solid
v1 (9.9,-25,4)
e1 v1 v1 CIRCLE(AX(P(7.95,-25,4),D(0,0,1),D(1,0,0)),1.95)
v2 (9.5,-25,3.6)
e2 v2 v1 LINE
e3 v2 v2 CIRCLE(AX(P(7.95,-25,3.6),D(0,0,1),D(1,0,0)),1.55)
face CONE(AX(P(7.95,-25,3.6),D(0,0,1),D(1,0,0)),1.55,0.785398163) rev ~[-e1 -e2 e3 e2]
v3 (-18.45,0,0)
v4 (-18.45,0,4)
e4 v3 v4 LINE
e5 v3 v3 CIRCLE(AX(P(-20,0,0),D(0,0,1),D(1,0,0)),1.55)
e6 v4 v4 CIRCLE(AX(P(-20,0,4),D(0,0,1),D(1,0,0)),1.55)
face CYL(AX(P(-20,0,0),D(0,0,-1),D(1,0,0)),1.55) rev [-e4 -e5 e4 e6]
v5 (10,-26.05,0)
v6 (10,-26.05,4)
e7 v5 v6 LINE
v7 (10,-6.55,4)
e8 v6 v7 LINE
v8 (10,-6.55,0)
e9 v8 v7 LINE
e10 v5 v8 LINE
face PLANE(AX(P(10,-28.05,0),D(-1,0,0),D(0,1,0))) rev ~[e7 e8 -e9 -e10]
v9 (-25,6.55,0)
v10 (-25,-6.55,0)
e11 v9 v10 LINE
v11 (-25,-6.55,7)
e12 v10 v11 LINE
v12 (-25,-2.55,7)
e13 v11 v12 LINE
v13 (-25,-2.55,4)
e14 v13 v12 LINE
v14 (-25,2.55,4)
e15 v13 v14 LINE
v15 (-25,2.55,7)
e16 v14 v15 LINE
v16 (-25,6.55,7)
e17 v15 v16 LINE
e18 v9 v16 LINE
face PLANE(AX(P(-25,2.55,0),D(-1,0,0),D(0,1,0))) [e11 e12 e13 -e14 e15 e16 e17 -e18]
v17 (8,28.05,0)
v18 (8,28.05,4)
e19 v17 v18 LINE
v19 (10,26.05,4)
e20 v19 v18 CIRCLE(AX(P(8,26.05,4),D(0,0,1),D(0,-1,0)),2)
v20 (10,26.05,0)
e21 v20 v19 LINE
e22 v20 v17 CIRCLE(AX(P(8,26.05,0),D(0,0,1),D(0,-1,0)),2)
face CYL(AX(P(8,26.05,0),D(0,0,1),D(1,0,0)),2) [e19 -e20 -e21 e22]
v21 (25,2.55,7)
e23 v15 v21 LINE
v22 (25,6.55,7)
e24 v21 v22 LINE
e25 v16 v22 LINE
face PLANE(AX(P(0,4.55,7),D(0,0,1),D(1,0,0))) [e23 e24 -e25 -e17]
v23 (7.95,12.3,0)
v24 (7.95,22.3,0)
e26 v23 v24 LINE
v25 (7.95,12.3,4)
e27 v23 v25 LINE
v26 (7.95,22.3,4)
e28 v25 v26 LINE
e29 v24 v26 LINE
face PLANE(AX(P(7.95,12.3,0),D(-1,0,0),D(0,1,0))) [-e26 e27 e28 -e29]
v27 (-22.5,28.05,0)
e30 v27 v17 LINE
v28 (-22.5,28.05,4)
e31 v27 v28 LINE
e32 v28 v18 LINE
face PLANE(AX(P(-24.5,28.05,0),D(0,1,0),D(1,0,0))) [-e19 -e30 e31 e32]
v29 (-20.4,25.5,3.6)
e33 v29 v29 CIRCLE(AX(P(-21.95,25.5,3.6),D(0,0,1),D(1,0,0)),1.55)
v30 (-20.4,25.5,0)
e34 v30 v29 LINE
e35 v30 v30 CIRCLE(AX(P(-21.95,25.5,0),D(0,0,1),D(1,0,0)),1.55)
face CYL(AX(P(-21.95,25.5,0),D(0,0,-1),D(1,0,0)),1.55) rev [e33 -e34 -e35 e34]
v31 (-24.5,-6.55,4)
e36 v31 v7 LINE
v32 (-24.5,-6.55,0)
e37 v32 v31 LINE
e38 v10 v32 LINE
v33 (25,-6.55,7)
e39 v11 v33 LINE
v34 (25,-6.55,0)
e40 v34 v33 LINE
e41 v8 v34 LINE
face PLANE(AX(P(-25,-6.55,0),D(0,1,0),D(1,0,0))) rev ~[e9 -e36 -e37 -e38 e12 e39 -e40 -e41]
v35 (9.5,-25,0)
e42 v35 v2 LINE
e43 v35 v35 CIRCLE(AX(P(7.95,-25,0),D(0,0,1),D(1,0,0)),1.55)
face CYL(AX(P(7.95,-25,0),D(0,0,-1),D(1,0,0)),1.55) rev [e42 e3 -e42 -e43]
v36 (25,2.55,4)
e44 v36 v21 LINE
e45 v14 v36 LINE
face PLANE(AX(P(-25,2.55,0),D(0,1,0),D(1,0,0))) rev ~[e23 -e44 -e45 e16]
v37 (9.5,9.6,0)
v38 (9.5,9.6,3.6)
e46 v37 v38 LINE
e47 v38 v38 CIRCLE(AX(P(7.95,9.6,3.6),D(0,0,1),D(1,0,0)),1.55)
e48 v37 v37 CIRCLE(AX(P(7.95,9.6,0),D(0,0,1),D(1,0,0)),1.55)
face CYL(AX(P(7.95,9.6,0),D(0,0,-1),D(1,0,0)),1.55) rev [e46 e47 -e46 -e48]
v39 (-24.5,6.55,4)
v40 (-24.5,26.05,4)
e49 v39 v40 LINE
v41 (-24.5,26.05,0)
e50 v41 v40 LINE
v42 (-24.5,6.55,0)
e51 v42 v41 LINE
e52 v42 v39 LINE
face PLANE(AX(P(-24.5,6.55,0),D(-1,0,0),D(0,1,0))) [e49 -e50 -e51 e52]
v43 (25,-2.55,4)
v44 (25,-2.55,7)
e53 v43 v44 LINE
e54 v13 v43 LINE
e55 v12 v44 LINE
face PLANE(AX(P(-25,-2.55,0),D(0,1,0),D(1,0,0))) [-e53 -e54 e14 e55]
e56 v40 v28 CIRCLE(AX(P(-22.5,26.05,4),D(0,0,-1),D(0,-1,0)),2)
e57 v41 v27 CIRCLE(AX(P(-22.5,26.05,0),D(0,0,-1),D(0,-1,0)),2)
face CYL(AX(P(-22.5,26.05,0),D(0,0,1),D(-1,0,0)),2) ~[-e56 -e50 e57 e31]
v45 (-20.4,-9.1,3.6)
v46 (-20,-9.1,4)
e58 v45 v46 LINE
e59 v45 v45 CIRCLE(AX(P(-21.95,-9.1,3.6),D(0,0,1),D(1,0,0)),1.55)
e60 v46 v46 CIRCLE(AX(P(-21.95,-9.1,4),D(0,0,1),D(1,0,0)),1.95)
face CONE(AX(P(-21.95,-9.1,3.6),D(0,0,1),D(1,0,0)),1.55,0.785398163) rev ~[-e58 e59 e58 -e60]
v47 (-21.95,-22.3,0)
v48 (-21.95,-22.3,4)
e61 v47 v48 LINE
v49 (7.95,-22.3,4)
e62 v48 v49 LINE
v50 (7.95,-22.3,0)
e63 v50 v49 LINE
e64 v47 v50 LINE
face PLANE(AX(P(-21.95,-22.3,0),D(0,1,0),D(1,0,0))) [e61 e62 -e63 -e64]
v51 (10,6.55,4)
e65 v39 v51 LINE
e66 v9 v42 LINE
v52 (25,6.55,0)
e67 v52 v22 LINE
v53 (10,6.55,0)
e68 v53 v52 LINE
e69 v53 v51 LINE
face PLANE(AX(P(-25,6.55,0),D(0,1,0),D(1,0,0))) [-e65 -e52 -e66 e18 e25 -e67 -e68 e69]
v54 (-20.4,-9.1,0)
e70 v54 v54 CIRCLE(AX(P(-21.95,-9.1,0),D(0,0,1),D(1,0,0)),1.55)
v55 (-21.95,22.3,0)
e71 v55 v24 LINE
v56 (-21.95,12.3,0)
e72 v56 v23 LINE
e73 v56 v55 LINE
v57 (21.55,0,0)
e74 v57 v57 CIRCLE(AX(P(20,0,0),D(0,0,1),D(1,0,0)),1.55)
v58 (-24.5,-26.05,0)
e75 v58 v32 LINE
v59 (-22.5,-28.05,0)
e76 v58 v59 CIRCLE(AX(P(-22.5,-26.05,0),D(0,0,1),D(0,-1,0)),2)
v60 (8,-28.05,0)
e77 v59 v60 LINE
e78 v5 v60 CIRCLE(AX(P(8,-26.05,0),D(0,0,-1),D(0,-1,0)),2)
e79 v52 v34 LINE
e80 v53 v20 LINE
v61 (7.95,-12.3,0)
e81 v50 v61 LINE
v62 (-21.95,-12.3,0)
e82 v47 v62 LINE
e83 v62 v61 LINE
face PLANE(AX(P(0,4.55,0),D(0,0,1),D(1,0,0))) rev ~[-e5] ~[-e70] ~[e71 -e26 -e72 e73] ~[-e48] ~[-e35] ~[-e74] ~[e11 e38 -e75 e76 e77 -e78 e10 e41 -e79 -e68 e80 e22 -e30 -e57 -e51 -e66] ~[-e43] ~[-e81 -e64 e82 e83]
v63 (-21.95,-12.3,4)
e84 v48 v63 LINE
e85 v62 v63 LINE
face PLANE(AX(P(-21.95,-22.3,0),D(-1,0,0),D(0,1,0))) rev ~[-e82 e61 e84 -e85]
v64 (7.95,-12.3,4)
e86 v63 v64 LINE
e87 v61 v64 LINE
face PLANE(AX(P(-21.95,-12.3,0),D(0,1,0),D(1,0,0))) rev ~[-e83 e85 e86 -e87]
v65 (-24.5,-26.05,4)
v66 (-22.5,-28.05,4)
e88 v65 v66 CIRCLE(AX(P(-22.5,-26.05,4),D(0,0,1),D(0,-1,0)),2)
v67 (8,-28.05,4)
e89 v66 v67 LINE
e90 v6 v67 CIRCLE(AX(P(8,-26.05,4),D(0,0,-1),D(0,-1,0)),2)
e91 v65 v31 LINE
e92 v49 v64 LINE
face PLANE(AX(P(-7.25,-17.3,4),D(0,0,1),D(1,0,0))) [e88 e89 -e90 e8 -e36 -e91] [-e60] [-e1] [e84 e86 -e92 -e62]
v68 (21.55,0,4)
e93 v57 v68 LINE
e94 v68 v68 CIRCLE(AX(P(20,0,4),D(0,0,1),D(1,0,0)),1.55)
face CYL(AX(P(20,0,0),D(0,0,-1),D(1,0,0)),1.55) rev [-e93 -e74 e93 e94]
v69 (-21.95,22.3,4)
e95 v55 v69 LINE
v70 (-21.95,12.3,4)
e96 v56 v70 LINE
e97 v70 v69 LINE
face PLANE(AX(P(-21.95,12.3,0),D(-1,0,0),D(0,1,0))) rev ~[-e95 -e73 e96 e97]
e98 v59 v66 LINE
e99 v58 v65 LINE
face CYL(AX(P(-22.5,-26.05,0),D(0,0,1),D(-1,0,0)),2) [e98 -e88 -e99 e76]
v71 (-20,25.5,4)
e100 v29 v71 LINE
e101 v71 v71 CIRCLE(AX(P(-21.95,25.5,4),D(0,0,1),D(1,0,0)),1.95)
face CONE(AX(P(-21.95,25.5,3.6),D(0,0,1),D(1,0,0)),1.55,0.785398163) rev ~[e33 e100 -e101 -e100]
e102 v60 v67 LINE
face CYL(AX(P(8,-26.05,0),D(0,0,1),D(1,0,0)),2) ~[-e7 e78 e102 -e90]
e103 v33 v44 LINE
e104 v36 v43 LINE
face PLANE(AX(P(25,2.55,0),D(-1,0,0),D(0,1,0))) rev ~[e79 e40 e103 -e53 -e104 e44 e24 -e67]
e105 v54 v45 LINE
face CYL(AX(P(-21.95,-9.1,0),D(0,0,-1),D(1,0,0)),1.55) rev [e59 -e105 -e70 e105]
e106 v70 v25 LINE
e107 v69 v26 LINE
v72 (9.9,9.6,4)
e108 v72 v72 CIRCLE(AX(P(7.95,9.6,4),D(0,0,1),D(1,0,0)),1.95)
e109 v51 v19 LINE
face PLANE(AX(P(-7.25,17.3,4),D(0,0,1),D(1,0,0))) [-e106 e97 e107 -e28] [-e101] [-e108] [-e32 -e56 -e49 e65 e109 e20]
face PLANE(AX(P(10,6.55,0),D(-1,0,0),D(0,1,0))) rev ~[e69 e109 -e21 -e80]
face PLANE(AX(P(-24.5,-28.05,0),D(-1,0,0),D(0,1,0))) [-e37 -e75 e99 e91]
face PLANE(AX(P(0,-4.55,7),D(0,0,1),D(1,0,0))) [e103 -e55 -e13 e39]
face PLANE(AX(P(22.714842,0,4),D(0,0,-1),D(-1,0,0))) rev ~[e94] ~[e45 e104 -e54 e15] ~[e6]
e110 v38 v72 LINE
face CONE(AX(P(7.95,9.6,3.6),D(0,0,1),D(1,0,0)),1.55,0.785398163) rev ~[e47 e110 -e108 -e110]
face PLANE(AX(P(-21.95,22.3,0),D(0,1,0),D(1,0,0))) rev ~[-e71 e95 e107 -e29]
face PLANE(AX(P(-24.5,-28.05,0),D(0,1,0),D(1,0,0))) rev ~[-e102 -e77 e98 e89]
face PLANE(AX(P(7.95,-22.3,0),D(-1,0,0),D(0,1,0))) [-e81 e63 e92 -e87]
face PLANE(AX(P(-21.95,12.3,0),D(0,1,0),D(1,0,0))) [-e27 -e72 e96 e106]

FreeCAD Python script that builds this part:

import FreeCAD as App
import Part
import Sketcher
from FreeCAD import Vector
Q = App.Units.Quantity


def edges_at(feature, points):
    """Names of the edges that pass closest to the given points."""
    edges = feature.Shape.Edges
    near = lambda p: min(range(len(edges)), key=lambda i: edges[i].distToShape(Part.Vertex(*p))[0])
    return sorted({f"Edge{near(p) + 1}" for p in points})

doc = App.newDocument("Part")
body = doc.addObject("PartDesign::Body", "Body")

# Sketch on XY plane
sketch1 = doc.addObject("Sketcher::SketchObject", "Sketch")
body.addObject(sketch1)
sketch1.AttachmentSupport = (doc.XY_Plane, [""])
sketch1.MapMode = "FlatFace"
sketch1.addGeometry([
    Part.LineSegment(Vector(-25, -2.5, 0), Vector(25, -2.5, 0)),  # 0
    Part.LineSegment(Vector(25, -2.5, 0), Vector(25, 2.5, 0)),  # 1
    Part.LineSegment(Vector(25, 2.5, 0), Vector(-25, 2.5, 0)),  # 2
    Part.LineSegment(Vector(-25, 2.5, 0), Vector(-25, -2.5, 0)),  # 3
    Part.Circle(Vector(20, 0, 0), Vector(0, 0, 1), 1.6),  # 4
    Part.Circle(Vector(-20, 0, 0), Vector(0, 0, 1), 1.6),  # 5
], False)
sketch1.addConstraint([
    Sketcher.Constraint("Coincident", 0, 2, 1, 1),
    Sketcher.Constraint("Coincident", 1, 2, 2, 1),
    Sketcher.Constraint("Coincident", 2, 2, 3, 1),
    Sketcher.Constraint("Coincident", 3, 2, 0, 1),
    Sketcher.Constraint("Horizontal", 0),
    Sketcher.Constraint("Vertical", 1),
    Sketcher.Constraint("Horizontal", 2),
    Sketcher.Constraint("Vertical", 3),
    Sketcher.Constraint("Equal", 4, 5),
    Sketcher.Constraint("Symmetric", 4, 3, 5, 3, -1, 1),
    Sketcher.Constraint("Symmetric", 0, 2, 2, 2, -1, 1),
    Sketcher.Constraint("PointOnObject", 4, 3, -1),
    Sketcher.Constraint("Diameter", 4, Q("3.1 mm")),
    Sketcher.Constraint("DistanceX", 0, 1, 0, 2, Q("50 mm")),
    Sketcher.Constraint("DistanceY", 1, 1, 1, 2, Q("5.1 mm")),
    Sketcher.Constraint("DistanceX", -1, 1, 4, 3, Q("20 mm")),
])
pad1 = doc.addObject("PartDesign::Pad", "Pad")
body.addObject(pad1)
pad1.Profile = sketch1
pad1.Length = 4

# Sketch on XY plane
sketch2 = doc.addObject("Sketcher::SketchObject", "Sketch001")
body.addObject(sketch2)
sketch2.AttachmentSupport = (doc.XY_Plane, [""])
sketch2.MapMode = "FlatFace"
sketch2.addGeometry([
    Part.LineSegment(Vector(-25, 6.5, 0), Vector(-25, 2.5, 0)),  # 0
    Part.LineSegment(Vector(-25, 2.5, 0), Vector(25, 2.5, 0)),  # 1
    Part.LineSegment(Vector(25, 2.5, 0), Vector(25, 6.5, 0)),  # 2
    Part.LineSegment(Vector(25, 6.5, 0), Vector(-25, 6.5, 0)),  # 3
    Part.LineSegment(Vector(-25, -2.5, 0), Vector(-25, -6.5, 0)),  # 4
    Part.LineSegment(Vector(-25, -6.5, 0), Vector(25, -6.5, 0)),  # 5
    Part.LineSegment(Vector(25, -6.5, 0), Vector(25, -2.5, 0)),  # 6
    Part.LineSegment(Vector(25, -2.5, 0), Vector(-25, -2.5, 0)),  # 7
], False)
sketch2.addConstraint([
    Sketcher.Constraint("Coincident", 0, 2, 1, 1),
    Sketcher.Constraint("Coincident", 1, 2, 2, 1),
    Sketcher.Constraint("Coincident", 2, 2, 3, 1),
    Sketcher.Constraint("Coincident", 3, 2, 0, 1),
    Sketcher.Constraint("Coincident", 4, 2, 5, 1),
    Sketcher.Constraint("Coincident", 5, 2, 6, 1),
    Sketcher.Constraint("Coincident", 6, 2, 7, 1),
    Sketcher.Constraint("Coincident", 7, 2, 4, 1),
    Sketcher.Constraint("Vertical", 0),
    Sketcher.Constraint("Horizontal", 1),
    Sketcher.Constraint("Vertical", 2),
    Sketcher.Constraint("Horizontal", 3),
    Sketcher.Constraint("Vertical", 4),
    Sketcher.Constraint("Horizontal", 5),
    Sketcher.Constraint("Vertical", 6),
    Sketcher.Constraint("Horizontal", 7),
    Sketcher.Constraint("Symmetric", 2, 2, 4, 2, -1, 1),
    Sketcher.Constraint("Symmetric", 0, 2, 6, 2, -1, 1),
    Sketcher.Constraint("Vertical", 3, 2, 4, 2),
    Sketcher.Constraint("DistanceX", 1, 1, 1, 2, Q("50 mm")),
    Sketcher.Constraint("DistanceY", 0, 2, 0, 1, Q("4 mm")),
    Sketcher.Constraint("DistanceY", 4, 2, 0, 2, Q("9.1 mm")),
])
pad2 = doc.addObject("PartDesign::Pad", "Pad001")
body.addObject(pad2)
pad2.Profile = sketch2
pad2.Length = 7

# Sketch on XY plane
sketch3 = doc.addObject("Sketcher::SketchObject", "Sketch002")
body.addObject(sketch3)
sketch3.AttachmentSupport = (doc.XY_Plane, [""])
sketch3.MapMode = "FlatFace"
sketch3.addGeometry([
    Part.LineSegment(Vector(-24.5, 28.1, 0), Vector(-24.5, 6.5, 0)),  # 0
    Part.LineSegment(Vector(-24.5, 6.5, 0), Vector(10, 6.5, 0)),  # 1
    Part.LineSegment(Vector(10, 6.5, 0), Vector(10, 28.1, 0)),  # 2
    Part.LineSegment(Vector(10, 28.1, 0), Vector(-24.5, 28.1, 0)),  # 3
    Part.Circle(Vector(8, 9.6, 0), Vector(0, 0, 1), 1.6),  # 4
    Part.LineSegment(Vector(8, 12.3, 0), Vector(-21.9, 12.3, 0)),  # 5
    Part.LineSegment(Vector(-21.9, 12.3, 0), Vector(-21.9, 22.3, 0)),  # 6
    Part.LineSegment(Vector(-21.9, 22.3, 0), Vector(8, 22.3, 0)),  # 7
    Part.LineSegment(Vector(8, 22.3, 0), Vector(8, 12.3, 0)),  # 8
    Part.Circle(Vector(-21.9, 25.5, 0), Vector(0, 0, 1), 1.6),  # 9
    Part.LineSegment(Vector(-24.5, -6.5, 0), Vector(-24.5, -28.1, 0)),  # 10
    Part.LineSegment(Vector(-24.5, -28.1, 0), Vector(10, -28.1, 0)),  # 11
    Part.LineSegment(Vector(10, -28.1, 0), Vector(10, -6.5, 0)),  # 12
    Part.LineSegment(Vector(10, -6.5, 0), Vector(-24.5, -6.5, 0)),  # 13
    Part.Circle(Vector(8, -25, 0), Vector(0, 0, 1), 1.6),  # 14
    Part.LineSegment(Vector(8, -22.3, 0), Vector(-21.9, -22.3, 0)),  # 15
    Part.LineSegment(Vector(-21.9, -22.3, 0), Vector(-21.9, -12.3, 0)),  # 16
    Part.LineSegment(Vector(-21.9, -12.3, 0), Vector(8, -12.3, 0)),  # 17
    Part.LineSegment(Vector(8, -12.3, 0), Vector(8, -22.3, 0)),  # 18
    Part.Circle(Vector(-21.9, -9.1, 0), Vector(0, 0, 1), 1.6),  # 19
], False)
sketch3.addConstraint([
    Sketcher.Constraint("Coincident", 0, 2, 1, 1),
    Sketcher.Constraint("Coincident", 1, 2, 2, 1),
    Sketcher.Constraint("Coincident", 2, 2, 3, 1),
    Sketcher.Constraint("Coincident", 3, 2, 0, 1),
    Sketcher.Constraint("Coincident", 5, 2, 6, 1),
    Sketcher.Constraint("Coincident", 6, 2, 7, 1),
    Sketcher.Constraint("Coincident", 7, 2, 8, 1),
    Sketcher.Constraint("Coincident", 8, 2, 5, 1),
    Sketcher.Constraint("Coincident", 10, 2, 11, 1),
    Sketcher.Constraint("Coincident", 11, 2, 12, 1),
    Sketcher.Constraint("Coincident", 12, 2, 13, 1),
    Sketcher.Constraint("Coincident", 13, 2, 10, 1),
    Sketcher.Constraint("Coincident", 15, 2, 16, 1),
    Sketcher.Constraint("Coincident", 16, 2, 17, 1),
    Sketcher.Constraint("Coincident", 17, 2, 18, 1),
    Sketcher.Constraint("Coincident", 18, 2, 15, 1),
    Sketcher.Constraint("Vertical", 0),
    Sketcher.Constraint("Horizontal", 1),
    Sketcher.Constraint("Vertical", 2),
    Sketcher.Constraint("Horizontal", 3),
    Sketcher.Constraint("Horizontal", 5),
    Sketcher.Constraint("Vertical", 6),
    Sketcher.Constraint("Horizontal", 7),
    Sketcher.Constraint("Vertical", 8),
    Sketcher.Constraint("Vertical", 10),
    Sketcher.Constraint("Horizontal", 11),
    Sketcher.Constraint("Vertical", 12),
    Sketcher.Constraint("Horizontal", 13),
    Sketcher.Constraint("Horizontal", 15),
    Sketcher.Constraint("Vertical", 16),
    Sketcher.Constraint("Horizontal", 17),
    Sketcher.Constraint("Vertical", 18),
    Sketcher.Constraint("Equal", 4, 9),
    Sketcher.Constraint("Equal", 9, 14),
    Sketcher.Constraint("Equal", 14, 19),
    Sketcher.Constraint("Symmetric", 3, 2, 10, 2, -1),
    Sketcher.Constraint("Symmetric", 1, 2, 12, 2, -1),
    Sketcher.Constraint("Symmetric", 6, 2, 15, 2, -1),
    Sketcher.Constraint("Symmetric", 8, 2, 17, 2, -1),
    Sketcher.Constraint("Vertical", 4, 3, 14, 3),
    Sketcher.Constraint("Vertical", 9, 3, 19, 3),
    Sketcher.Constraint("Vertical", 19, 3, 5, 2),
    Sketcher.Constraint("Vertical", 14, 3, 7, 2),
    Sketcher.Constraint("Diameter", 4, Q("3.1 mm")),
    Sketcher.Constraint("DistanceY", 6, 1, 6, 2, Q("10 mm")),
    Sketcher.Constraint("DistanceX", 1, 1, 1, 2, Q("34.5 mm")),
    Sketcher.Constraint("DistanceX", 5, 2, 5, 1, Q("29.9 mm")),
    Sketcher.Constraint("DistanceY", 0, 2, 0, 1, Q("21.5 mm")),
    Sketcher.Constraint("DistanceY", 14, 3, -1, 1, Q("25 mm")),
    Sketcher.Constraint("DistanceX", -1, 1, 1, 2, Q("10 mm")),
    Sketcher.Constraint("DistanceY", -1, 1, 4, 3, Q("9.6 mm")),
    Sketcher.Constraint("DistanceY", -1, 1, 9, 3, Q("25.5 mm")),
    Sketcher.Constraint("DistanceY", 19, 3, -1, 1, Q("9.1 mm")),
    Sketcher.Constraint("DistanceY", -1, 1, 5, 2, Q("12.3 mm")),
    Sketcher.Constraint("DistanceY", 10, 2, 0, 2, Q("34.6 mm")),
    Sketcher.Constraint("DistanceX", -1, 1, 4, 3, Q("7.95 mm")),
])
pad3 = doc.addObject("PartDesign::Pad", "Pad002")
body.addObject(pad3)
pad3.Profile = sketch3
pad3.Length = 4
doc.recompute()

fillet = doc.addObject("PartDesign::Fillet", "Fillet")
body.addObject(fillet)
fillet.Base = (pad3, edges_at(pad3, [
    (-24.5, 28.05, 2),
    (10, 28.05, 2),
    (-24.5, -28.05, 2),
    (10, -28.05, 2),
]))
fillet.Radius = 2
doc.recompute()

chamfer = doc.addObject("PartDesign::Chamfer", "Chamfer")
body.addObject(chamfer)
chamfer.Base = (fillet, edges_at(fillet, [
    (-23.5, 25.5, 4),
    (6.4, 9.6, 4),
    (-23.5, -9.1, 4),
    (6.4, -25, 4),
]))
chamfer.Size = 0.4

doc.recompute()
